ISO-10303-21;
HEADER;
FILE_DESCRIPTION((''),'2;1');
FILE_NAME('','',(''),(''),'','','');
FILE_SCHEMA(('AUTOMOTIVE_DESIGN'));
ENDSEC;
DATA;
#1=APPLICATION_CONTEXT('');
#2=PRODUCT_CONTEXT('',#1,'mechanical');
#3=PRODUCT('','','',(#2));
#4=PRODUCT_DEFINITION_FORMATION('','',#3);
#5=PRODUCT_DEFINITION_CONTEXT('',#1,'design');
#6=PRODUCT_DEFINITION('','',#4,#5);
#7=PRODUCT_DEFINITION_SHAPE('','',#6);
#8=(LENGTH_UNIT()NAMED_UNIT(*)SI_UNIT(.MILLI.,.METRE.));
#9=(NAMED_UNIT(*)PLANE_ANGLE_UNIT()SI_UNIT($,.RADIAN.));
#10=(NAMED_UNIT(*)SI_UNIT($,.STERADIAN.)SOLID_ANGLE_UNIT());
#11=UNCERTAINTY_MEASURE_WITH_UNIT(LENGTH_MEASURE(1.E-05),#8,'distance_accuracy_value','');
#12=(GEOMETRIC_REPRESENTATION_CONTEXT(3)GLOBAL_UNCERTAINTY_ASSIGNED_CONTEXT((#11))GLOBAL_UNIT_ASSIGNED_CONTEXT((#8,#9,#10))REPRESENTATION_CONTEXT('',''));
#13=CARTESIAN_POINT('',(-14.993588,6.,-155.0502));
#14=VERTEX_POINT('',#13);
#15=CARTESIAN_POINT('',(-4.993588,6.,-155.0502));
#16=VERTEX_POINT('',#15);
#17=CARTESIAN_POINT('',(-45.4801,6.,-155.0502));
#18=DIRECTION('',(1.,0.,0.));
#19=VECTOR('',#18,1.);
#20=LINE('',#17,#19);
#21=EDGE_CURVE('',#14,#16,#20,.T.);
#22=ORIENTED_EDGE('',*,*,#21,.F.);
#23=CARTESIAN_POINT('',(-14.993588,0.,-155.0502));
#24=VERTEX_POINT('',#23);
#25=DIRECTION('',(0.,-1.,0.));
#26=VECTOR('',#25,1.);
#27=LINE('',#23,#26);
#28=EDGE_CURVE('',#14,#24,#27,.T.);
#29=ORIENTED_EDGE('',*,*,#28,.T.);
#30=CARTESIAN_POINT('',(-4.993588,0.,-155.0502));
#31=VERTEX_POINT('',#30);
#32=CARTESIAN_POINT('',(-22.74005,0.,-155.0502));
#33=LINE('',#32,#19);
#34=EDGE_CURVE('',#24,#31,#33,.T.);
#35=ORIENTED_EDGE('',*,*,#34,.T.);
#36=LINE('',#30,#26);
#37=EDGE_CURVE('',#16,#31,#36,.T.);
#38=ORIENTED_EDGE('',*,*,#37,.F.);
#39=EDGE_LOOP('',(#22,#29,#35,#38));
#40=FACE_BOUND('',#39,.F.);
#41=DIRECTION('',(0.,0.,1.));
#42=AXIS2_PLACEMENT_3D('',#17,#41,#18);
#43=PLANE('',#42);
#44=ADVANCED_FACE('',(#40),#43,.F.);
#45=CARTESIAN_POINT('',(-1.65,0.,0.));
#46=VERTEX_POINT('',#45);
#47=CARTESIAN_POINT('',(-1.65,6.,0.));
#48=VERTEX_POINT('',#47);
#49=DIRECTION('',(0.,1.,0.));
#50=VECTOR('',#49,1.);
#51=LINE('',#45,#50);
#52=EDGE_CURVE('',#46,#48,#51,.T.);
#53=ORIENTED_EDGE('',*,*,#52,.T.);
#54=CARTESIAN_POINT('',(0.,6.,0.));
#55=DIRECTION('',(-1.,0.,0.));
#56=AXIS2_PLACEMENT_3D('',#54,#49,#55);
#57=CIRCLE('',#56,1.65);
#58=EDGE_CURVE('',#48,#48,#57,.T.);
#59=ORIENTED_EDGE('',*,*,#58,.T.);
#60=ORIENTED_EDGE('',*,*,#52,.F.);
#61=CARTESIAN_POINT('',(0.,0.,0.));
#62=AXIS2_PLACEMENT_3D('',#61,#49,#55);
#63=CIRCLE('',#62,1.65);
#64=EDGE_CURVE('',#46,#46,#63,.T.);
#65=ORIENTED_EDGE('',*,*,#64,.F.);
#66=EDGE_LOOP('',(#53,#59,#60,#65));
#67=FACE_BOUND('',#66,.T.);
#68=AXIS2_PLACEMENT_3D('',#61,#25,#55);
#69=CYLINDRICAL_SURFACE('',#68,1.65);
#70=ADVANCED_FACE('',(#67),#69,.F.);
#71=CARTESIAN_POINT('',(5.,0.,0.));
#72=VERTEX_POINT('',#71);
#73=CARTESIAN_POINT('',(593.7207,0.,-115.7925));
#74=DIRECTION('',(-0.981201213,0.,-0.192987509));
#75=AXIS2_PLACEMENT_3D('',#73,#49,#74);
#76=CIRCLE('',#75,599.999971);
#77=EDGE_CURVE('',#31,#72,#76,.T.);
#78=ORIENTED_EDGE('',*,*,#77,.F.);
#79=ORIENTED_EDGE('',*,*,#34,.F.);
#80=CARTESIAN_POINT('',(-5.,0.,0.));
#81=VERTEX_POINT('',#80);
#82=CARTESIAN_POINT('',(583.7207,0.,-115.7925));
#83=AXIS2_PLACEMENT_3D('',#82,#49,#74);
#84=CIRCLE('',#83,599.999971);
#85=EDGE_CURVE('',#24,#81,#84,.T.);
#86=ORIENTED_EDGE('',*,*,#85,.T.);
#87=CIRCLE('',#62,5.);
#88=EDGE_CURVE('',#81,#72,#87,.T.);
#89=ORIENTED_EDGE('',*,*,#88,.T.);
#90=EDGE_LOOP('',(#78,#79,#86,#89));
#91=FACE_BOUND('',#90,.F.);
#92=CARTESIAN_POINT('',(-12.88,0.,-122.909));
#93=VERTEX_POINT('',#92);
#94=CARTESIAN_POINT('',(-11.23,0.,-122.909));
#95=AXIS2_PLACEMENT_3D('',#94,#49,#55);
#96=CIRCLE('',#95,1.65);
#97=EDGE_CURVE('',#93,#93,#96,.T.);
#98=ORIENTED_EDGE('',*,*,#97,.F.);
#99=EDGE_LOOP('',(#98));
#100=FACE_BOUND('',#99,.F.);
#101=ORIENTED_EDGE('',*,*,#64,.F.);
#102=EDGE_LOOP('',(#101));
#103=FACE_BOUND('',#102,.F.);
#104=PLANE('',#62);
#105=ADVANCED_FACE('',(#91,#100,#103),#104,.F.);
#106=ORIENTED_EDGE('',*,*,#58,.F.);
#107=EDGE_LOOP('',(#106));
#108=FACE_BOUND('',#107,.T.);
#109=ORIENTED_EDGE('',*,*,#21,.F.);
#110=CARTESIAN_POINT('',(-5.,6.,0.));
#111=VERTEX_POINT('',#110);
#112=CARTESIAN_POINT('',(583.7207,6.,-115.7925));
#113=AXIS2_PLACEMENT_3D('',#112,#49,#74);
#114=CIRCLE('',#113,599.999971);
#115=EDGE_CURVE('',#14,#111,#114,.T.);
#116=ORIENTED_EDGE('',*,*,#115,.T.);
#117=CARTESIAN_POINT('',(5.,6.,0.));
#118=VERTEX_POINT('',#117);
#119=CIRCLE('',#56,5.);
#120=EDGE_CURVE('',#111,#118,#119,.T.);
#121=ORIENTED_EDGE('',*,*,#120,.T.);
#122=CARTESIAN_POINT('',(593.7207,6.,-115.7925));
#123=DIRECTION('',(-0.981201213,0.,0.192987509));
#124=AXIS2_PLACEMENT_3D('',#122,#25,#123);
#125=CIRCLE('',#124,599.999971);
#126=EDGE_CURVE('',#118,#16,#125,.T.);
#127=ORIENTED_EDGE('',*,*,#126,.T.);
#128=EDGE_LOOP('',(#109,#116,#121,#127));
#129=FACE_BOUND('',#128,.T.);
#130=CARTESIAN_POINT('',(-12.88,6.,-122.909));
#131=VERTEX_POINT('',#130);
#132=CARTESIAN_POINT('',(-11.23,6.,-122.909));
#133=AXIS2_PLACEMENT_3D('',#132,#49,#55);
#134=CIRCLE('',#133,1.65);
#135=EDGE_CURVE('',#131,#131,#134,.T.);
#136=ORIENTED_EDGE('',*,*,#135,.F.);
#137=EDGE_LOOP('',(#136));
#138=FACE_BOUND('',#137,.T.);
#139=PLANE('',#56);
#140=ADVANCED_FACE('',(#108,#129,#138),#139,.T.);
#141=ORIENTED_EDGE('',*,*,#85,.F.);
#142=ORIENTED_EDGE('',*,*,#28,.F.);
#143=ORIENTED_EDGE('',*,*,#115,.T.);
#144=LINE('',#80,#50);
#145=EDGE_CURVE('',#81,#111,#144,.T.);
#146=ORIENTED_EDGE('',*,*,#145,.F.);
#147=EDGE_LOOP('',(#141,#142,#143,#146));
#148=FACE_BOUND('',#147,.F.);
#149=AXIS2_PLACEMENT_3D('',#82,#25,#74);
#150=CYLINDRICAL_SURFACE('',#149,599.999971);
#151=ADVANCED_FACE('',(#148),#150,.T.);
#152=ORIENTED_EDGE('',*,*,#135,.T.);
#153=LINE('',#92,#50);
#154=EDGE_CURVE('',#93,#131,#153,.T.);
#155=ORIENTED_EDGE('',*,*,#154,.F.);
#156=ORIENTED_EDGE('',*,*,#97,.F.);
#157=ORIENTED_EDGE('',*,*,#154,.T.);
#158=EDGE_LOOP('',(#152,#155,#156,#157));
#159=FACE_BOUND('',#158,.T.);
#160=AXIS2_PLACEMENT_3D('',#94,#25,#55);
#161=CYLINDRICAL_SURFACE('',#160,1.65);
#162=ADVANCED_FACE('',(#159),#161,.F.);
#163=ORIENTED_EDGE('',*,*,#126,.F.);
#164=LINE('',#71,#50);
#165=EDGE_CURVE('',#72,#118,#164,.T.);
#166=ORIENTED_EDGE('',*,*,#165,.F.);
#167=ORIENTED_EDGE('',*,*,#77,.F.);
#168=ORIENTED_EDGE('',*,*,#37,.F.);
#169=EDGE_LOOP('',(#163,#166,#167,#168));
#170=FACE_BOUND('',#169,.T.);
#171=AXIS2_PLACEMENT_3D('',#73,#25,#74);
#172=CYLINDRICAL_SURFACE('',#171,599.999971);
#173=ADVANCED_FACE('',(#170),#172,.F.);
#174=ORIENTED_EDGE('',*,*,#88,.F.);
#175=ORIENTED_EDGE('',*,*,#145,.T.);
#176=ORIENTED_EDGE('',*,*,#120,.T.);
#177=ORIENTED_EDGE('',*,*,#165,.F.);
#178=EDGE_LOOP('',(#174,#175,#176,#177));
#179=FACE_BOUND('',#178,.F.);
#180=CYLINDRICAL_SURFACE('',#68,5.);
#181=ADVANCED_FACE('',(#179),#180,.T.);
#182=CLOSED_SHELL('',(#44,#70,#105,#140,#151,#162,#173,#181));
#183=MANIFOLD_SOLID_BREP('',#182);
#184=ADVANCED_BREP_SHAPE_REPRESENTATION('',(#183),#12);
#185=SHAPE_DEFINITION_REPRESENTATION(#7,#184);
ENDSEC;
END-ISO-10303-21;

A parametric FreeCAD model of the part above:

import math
import FreeCAD as App
import Part
import Sketcher
Q = App.Units.Quantity

doc = App.newDocument("Part")
params = doc.addObject("Spreadsheet::Sheet", "Params")
for row, (alias, value) in enumerate([
    ("sketch1_radius", "600 mm"),
    ("sketch1_radius2", "5 mm"),
    ("sketch1_diameter", "3.3 mm"),
    ("pad1_length", "6 mm"),
    ("pocket1_length", "10 mm"),
], start=1):
    params.set(f"A{row}", alias)
    params.set(f"B{row}", "=" + value)
    params.setAlias(f"B{row}", alias)

body = doc.addObject("PartDesign::Body", "Body")

# Sketch on XZ plane
sketch1 = body.newObject("Sketcher::SketchObject", "Sketch")
sketch1.AttachmentSupport = (doc.getObject("XZ_Plane"), [""])
sketch1.MapMode = "FlatFace"
sketch1.addGeometry(Part.LineSegment(App.Vector(-5, -288.984, 0), App.Vector(-5, -231.585, 0)), False)
sketch1.addGeometry(Part.ArcOfCircle(Part.Circle(App.Vector(583.7207, -115.7925, 0), App.Vector(0, 0, 1), 599.999971), math.radians(168.872817), math.radians(191.127183)), False)
sketch1.addGeometry(Part.ArcOfCircle(Part.Circle(App.Vector(0, 0, 0), App.Vector(0, 0, 1), 5), math.radians(0), math.radians(180)), False)
sketch1.addGeometry(Part.ArcOfCircle(Part.Circle(App.Vector(593.7207, -115.7925, 0), App.Vector(0, 0, 1), 599.999971), math.radians(168.872817), math.radians(191.127183)), False)
sketch1.addGeometry(Part.LineSegment(App.Vector(5, -231.585, 0), App.Vector(5, -288.984, 0)), False)
sketch1.addGeometry(Part.ArcOfCircle(Part.Circle(App.Vector(0, -288.984, 0), App.Vector(0, 0, 1), 5), math.radians(180), math.radians(360)), False)
sketch1.addGeometry(Part.Circle(App.Vector(0, -288.984, 0), App.Vector(0, 0, 1), 1.65), False)
sketch1.addGeometry(Part.Circle(App.Vector(0, -231.585, 0), App.Vector(0, 0, 1), 1.65), False)
sketch1.addGeometry(Part.Circle(App.Vector(-11.23, -122.909, 0), App.Vector(0, 0, 1), 1.65), False)
sketch1.addGeometry(Part.Circle(App.Vector(0, 0, 0), App.Vector(0, 0, 1), 1.65), False)
sketch1.addConstraint(Sketcher.Constraint("Coincident", 0, 2, 1, 2))
sketch1.addConstraint(Sketcher.Constraint("Coincident", 1, 1, 2, 2))
sketch1.addConstraint(Sketcher.Constraint("Coincident", 2, 1, 3, 1))
sketch1.addConstraint(Sketcher.Constraint("Coincident", 3, 2, 4, 1))
sketch1.addConstraint(Sketcher.Constraint("Tangent", 4, 2, 5, 2))
sketch1.addConstraint(Sketcher.Constraint("Tangent", 5, 1, 0, 1))
sketch1.addConstraint(Sketcher.Constraint("Vertical", 0))
sketch1.addConstraint(Sketcher.Constraint("Vertical", 4))
sketch1.addConstraint(Sketcher.Constraint("Coincident", 2, 3, -1, 1))
sketch1.addConstraint(Sketcher.Constraint("Coincident", 9, 3, -1, 1))
sketch1.addConstraint(Sketcher.Constraint("Coincident", 6, 3, 5, 3))
sketch1.addConstraint(Sketcher.Constraint("Equal", 1, 3))
sketch1.addConstraint(Sketcher.Constraint("Equal", 2, 5))
sketch1.addConstraint(Sketcher.Constraint("Equal", 6, 7))
sketch1.addConstraint(Sketcher.Constraint("Equal", 7, 8))
sketch1.addConstraint(Sketcher.Constraint("Equal", 8, 9))
sketch1.addConstraint(Sketcher.Constraint("Symmetric", 0, 2, 3, 2, -2))
sketch1.addConstraint(Sketcher.Constraint("PointOnObject", 7, 3, -2))
sketch1.addConstraint(Sketcher.Constraint("PointOnObject", 1, 1, -1))
sketch1.addConstraint(Sketcher.Constraint("PointOnObject", 2, 1, -1))
sketch1.addConstraint(Sketcher.Constraint("Horizontal", 7, 3, 0, 2))
sketch1.addConstraint(Sketcher.Constraint("Radius", 1, Q("600 mm")))
sketch1.addConstraint(Sketcher.Constraint("Radius", 2, Q("5 mm")))
sketch1.addConstraint(Sketcher.Constraint("Diameter", 6, Q("3.3 mm")))
sketch1.addConstraint(Sketcher.Constraint("DistanceY", 5, 3, -1, 1, Q("288.984 mm")))
sketch1.addConstraint(Sketcher.Constraint("DistanceY", 7, 3, -1, 1, Q("231.585 mm")))
sketch1.addConstraint(Sketcher.Constraint("DistanceY", 8, 3, -1, 1, Q("122.909 mm")))
sketch1.addConstraint(Sketcher.Constraint("DistanceX", 8, 3, -1, 1, Q("11.23 mm")))
sketch1.setExpression("Constraints[21]", "Params.sketch1_radius")
sketch1.setExpression("Constraints[22]", "Params.sketch1_radius2")
sketch1.setExpression("Constraints[23]", "Params.sketch1_diameter")
pad1 = body.newObject("PartDesign::Pad", "Pad")
pad1.Profile = sketch1
pad1.setExpression("Length", "Params.pad1_length")
pad1.Reversed = True

# Sketch on XZ plane
sketch2 = body.newObject("Sketcher::SketchObject", "Sketch001")
sketch2.AttachmentSupport = (doc.getObject("XZ_Plane"), [""])
sketch2.MapMode = "FlatFace"
sketch2.AttachmentOffset = App.Placement(App.Vector(0, 0, -6), App.Rotation())
sketch2.addGeometry(Part.LineSegment(App.Vector(136.0777, -316.254, 0), App.Vector(-115.905, -316.254, 0)), False)
sketch2.addGeometry(Part.LineSegment(App.Vector(-115.905, -316.254, 0), App.Vector(-115.905, 116.4724, 0)), False)
sketch2.addGeometry(Part.LineSegment(App.Vector(-115.905, 116.4724, 0), App.Vector(136.0777, 116.4724, 0)), False)
sketch2.addGeometry(Part.LineSegment(App.Vector(136.0777, 116.4724, 0), App.Vector(136.0777, -316.254, 0)), False)
sketch2.addGeometry(Part.LineSegment(App.Vector(-45.4801, 18.7731, 0), App.Vector(-45.4801, -155.0502, 0)), False)
sketch2.addGeometry(Part.LineSegment(App.Vector(-45.4801, -155.0502, 0), App.Vector(34.3076, -155.0502, 0)), False)
sketch2.addGeometry(Part.LineSegment(App.Vector(34.3076, -155.0502, 0), App.Vector(34.3076, 18.7731, 0)), False)
sketch2.addGeometry(Part.LineSegment(App.Vector(34.3076, 18.7731, 0), App.Vector(-45.4801, 18.7731, 0)), False)
sketch2.addConstraint(Sketcher.Constraint("Coincident", 0, 2, 1, 1))
sketch2.addConstraint(Sketcher.Constraint("Coincident", 1, 2, 2, 1))
sketch2.addConstraint(Sketcher.Constraint("Coincident", 2, 2, 3, 1))
sketch2.addConstraint(Sketcher.Constraint("Coincident", 3, 2, 0, 1))
sketch2.addConstraint(Sketcher.Constraint("Coincident", 4, 2, 5, 1))
sketch2.addConstraint(Sketcher.Constraint("Coincident", 5, 2, 6, 1))
sketch2.addConstraint(Sketcher.Constraint("Coincident", 6, 2, 7, 1))
sketch2.addConstraint(Sketcher.Constraint("Coincident", 7, 2, 4, 1))
sketch2.addConstraint(Sketcher.Constraint("Horizontal", 0))
sketch2.addConstraint(Sketcher.Constraint("Vertical", 1))
sketch2.addConstraint(Sketcher.Constraint("Horizontal", 2))
sketch2.addConstraint(Sketcher.Constraint("Vertical", 3))
sketch2.addConstraint(Sketcher.Constraint("Vertical", 4))
sketch2.addConstraint(Sketcher.Constraint("Horizontal", 5))
sketch2.addConstraint(Sketcher.Constraint("Vertical", 6))
sketch2.addConstraint(Sketcher.Constraint("Horizontal", 7))
sketch2.addConstraint(Sketcher.Constraint("DistanceX", 4, 2, -1, 1, Q("45.48 mm")))
sketch2.addConstraint(Sketcher.Constraint("DistanceX", 5, 2, 3, 2, Q("101.77 mm")))
sketch2.addConstraint(Sketcher.Constraint("DistanceX", 0, 2, 0, 1, Q("251.9827 mm")))
sketch2.addConstraint(Sketcher.Constraint("DistanceX", 5, 1, 5, 2, Q("79.7877 mm")))
sketch2.addConstraint(Sketcher.Constraint("DistanceY", 1, 1, 1, 2, Q("432.7264 mm")))
sketch2.addConstraint(Sketcher.Constraint("DistanceY", 4, 2, 4, 1, Q("173.8233 mm")))
sketch2.addConstraint(Sketcher.Constraint("DistanceY", 0, 2, -1, 1, Q("316.254 mm")))
sketch2.addConstraint(Sketcher.Constraint("DistanceY", -1, 1, 6, 2, Q("18.773 mm")))
pocket1 = body.newObject("PartDesign::Pocket", "Pocket")
pocket1.Profile = sketch2
pocket1.setExpression("Length", "Params.pocket1_length")
pocket1.Reversed = True

doc.recompute()
